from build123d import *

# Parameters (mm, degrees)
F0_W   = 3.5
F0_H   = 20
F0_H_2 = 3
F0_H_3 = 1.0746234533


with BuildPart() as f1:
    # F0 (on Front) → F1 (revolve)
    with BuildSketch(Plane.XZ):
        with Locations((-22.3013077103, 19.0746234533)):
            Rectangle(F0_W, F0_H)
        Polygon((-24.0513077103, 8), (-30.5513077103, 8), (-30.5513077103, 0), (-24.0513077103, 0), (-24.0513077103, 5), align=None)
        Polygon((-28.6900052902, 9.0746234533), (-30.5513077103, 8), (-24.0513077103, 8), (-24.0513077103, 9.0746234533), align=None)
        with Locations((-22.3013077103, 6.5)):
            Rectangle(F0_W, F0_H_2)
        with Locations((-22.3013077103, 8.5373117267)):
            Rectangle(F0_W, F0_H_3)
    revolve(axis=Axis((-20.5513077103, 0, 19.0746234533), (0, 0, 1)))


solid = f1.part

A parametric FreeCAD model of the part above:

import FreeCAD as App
import Part
import Sketcher

V = App.Vector
Q = App.Units.Quantity

doc = App.newDocument("Part")
body = doc.addObject("PartDesign::Body", "Body")

sketch1 = body.newObject("Sketcher::SketchObject", "Sketch")
sketch1.AttachmentSupport = (doc.getObject("XZ_Plane"), [""])
sketch1.MapMode = "FlatFace"
sketch1.addGeometry([
    Part.LineSegment(V(-24.1, 29.1, 0), V(-24.1, 9.1, 0)),
    Part.LineSegment(V(-24.1, 9.1, 0), V(-28.7, 9.1, 0)),
    Part.LineSegment(V(-28.7, 9.1, 0), V(-30.6, 8, 0)),
    Part.LineSegment(V(-30.6, 8, 0), V(-30.6, 0, 0)),
    Part.LineSegment(V(-30.6, 0, 0), V(-24.1, 0, 0)),
    Part.LineSegment(V(-24.1, 0, 0), V(-24.1, 5, 0)),
    Part.LineSegment(V(-24.1, 5, 0), V(-20.6, 5, 0)),
    Part.LineSegment(V(-20.6, 5, 0), V(-20.6, 29.1, 0)),
    Part.LineSegment(V(-20.6, 29.1, 0), V(-24.1, 29.1, 0)),
], False)
sketch1.addGeometry(Part.LineSegment(V(-20.6, 0, 0), V(-20.6, 29.1, 0)), True)
sketch1.addConstraint([
    Sketcher.Constraint("Coincident", 0, 2, 1, 1),
    Sketcher.Constraint("Coincident", 1, 2, 2, 1),
    Sketcher.Constraint("Coincident", 2, 2, 3, 1),
    Sketcher.Constraint("Coincident", 3, 2, 4, 1),
    Sketcher.Constraint("Coincident", 4, 2, 5, 1),
    Sketcher.Constraint("Coincident", 5, 2, 6, 1),
    Sketcher.Constraint("Coincident", 6, 2, 7, 1),
    Sketcher.Constraint("Coincident", 7, 2, 8, 1),
    Sketcher.Constraint("Coincident", 8, 2, 0, 1),
    Sketcher.Constraint("Vertical", 0),
    Sketcher.Constraint("Horizontal", 1),
    Sketcher.Constraint("Vertical", 3),
    Sketcher.Constraint("Horizontal", 4),
    Sketcher.Constraint("Vertical", 5),
    Sketcher.Constraint("Horizontal", 6),
    Sketcher.Constraint("Vertical", 7),
    Sketcher.Constraint("Horizontal", 8),
    Sketcher.Constraint("Vertical", 9),
    Sketcher.Constraint("Coincident", 9, 2, 7, 2),
    Sketcher.Constraint("PointOnObject", 3, 2, -1),
    Sketcher.Constraint("PointOnObject", 9, 1, -1),
    Sketcher.Constraint("Vertical", 0, 2, 4, 2),
    Sketcher.Constraint("DistanceY", 0, 2, 0, 1, Q("20 mm")),
    Sketcher.Constraint("DistanceY", 3, 2, 3, 1, Q("8 mm")),
    Sketcher.Constraint("DistanceY", 5, 1, 5, 2, Q("5 mm")),
    Sketcher.Constraint("Angle", 2, Q("-150 deg")),
    Sketcher.Constraint("DistanceX", 4, 1, 4, 2, Q("6.5 mm")),
    Sketcher.Constraint("DistanceX", 6, 1, 6, 2, Q("3.5 mm")),
    Sketcher.Constraint("DistanceX", 1, 2, 1, 1, Q("4.638698 mm")),
    Sketcher.Constraint("DistanceX", 0, 2, -1, 1, Q("24.051308 mm")),
])
revolution = body.newObject("PartDesign::Revolution", "Revolution")
revolution.Profile = sketch1
revolution.ReferenceAxis = (sketch1, ["Axis0"])
revolution.Angle = 360

doc.recompute()
